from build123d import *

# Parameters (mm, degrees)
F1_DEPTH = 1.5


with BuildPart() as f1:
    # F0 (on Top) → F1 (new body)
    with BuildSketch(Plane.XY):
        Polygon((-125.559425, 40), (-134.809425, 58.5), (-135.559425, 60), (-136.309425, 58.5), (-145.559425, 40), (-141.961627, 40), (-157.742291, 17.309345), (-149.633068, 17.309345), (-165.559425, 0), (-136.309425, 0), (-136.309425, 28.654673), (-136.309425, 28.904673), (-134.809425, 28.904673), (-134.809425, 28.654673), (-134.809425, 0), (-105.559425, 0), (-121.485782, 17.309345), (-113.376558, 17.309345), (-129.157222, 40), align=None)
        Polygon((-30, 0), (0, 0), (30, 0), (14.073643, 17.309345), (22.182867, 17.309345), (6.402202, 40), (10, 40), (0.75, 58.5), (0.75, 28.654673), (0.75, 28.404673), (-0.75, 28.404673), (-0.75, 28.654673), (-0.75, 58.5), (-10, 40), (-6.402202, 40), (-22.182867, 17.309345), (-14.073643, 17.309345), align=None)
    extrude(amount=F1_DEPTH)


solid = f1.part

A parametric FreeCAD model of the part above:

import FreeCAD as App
import Part
import Sketcher

V = App.Vector
Q = App.Units.Quantity

doc = App.newDocument("Part")
body = doc.addObject("PartDesign::Body", "Body")
body.AllowCompound = True

# Sketch on XY plane
sketch1 = body.newObject("Sketcher::SketchObject", "Sketch")
sketch1.AttachmentSupport = (doc.getObject("XY_Plane"), [""])
sketch1.MapMode = "FlatFace"
sketch1.addGeometry([
    Part.LineSegment(V(-125.559425, 40, 0), V(-135.559425, 60, 0)),  # 0
    Part.LineSegment(V(-135.559425, 60, 0), V(-145.559425, 40, 0)),  # 1
    Part.LineSegment(V(-145.559425, 40, 0), V(-141.961627, 40, 0)),  # 2
    Part.LineSegment(V(-141.961627, 40, 0), V(-157.742291, 17.309345, 0)),  # 3
    Part.LineSegment(V(-157.742291, 17.309345, 0), V(-149.633068, 17.309345, 0)),  # 4
    Part.LineSegment(V(-149.633068, 17.309345, 0), V(-165.559425, 0, 0)),  # 5
    Part.LineSegment(V(-165.559425, 0, 0), V(-136.309425, 0, 0)),  # 6
    Part.LineSegment(V(-136.309425, 0, 0), V(-136.309425, 28.904673, 0)),  # 7
    Part.LineSegment(V(-136.309425, 28.904673, 0), V(-134.809425, 28.904673, 0)),  # 8
    Part.LineSegment(V(-134.809425, 28.904673, 0), V(-134.809425, 0, 0)),  # 9
    Part.LineSegment(V(-134.809425, 0, 0), V(-105.559425, 0, 0)),  # 10
    Part.LineSegment(V(-105.559425, 0, 0), V(-121.485782, 17.309345, 0)),  # 11
    Part.LineSegment(V(-121.485782, 17.309345, 0), V(-113.376558, 17.309345, 0)),  # 12
    Part.LineSegment(V(-113.376558, 17.309345, 0), V(-129.157222, 40, 0)),  # 13
    Part.LineSegment(V(-129.157222, 40, 0), V(-125.559425, 40, 0)),  # 14
    Part.LineSegment(V(-30, 0, 0), V(30, 0, 0)),  # 15
    Part.LineSegment(V(30, 0, 0), V(14.073643, 17.309345, 0)),  # 16
    Part.LineSegment(V(14.073643, 17.309345, 0), V(22.182867, 17.309345, 0)),  # 17
    Part.LineSegment(V(22.182867, 17.309345, 0), V(6.402202, 40, 0)),  # 18
    Part.LineSegment(V(6.402202, 40, 0), V(10, 40, 0)),  # 19
    Part.LineSegment(V(10, 40, 0), V(0.75, 58.5, 0)),  # 20
    Part.LineSegment(V(0.75, 58.5, 0), V(0.75, 28.404673, 0)),  # 21
    Part.LineSegment(V(0.75, 28.404673, 0), V(-0.75, 28.404673, 0)),  # 22
    Part.LineSegment(V(-0.75, 28.404673, 0), V(-0.75, 58.5, 0)),  # 23
    Part.LineSegment(V(-0.75, 58.5, 0), V(-10, 40, 0)),  # 24
    Part.LineSegment(V(-10, 40, 0), V(-6.402202, 40, 0)),  # 25
    Part.LineSegment(V(-6.402202, 40, 0), V(-22.182867, 17.309345, 0)),  # 26
    Part.LineSegment(V(-22.182867, 17.309345, 0), V(-14.073643, 17.309345, 0)),  # 27
    Part.LineSegment(V(-14.073643, 17.309345, 0), V(-30, 0, 0)),  # 28
], False)
sketch1.addConstraint([
    Sketcher.Constraint("Coincident", 0, 2, 1, 1),
    Sketcher.Constraint("Coincident", 1, 2, 2, 1),
    Sketcher.Constraint("Coincident", 2, 2, 3, 1),
    Sketcher.Constraint("Coincident", 3, 2, 4, 1),
    Sketcher.Constraint("Coincident", 4, 2, 5, 1),
    Sketcher.Constraint("Coincident", 5, 2, 6, 1),
    Sketcher.Constraint("Coincident", 6, 2, 7, 1),
    Sketcher.Constraint("Coincident", 7, 2, 8, 1),
    Sketcher.Constraint("Coincident", 8, 2, 9, 1),
    Sketcher.Constraint("Coincident", 9, 2, 10, 1),
    Sketcher.Constraint("Coincident", 10, 2, 11, 1),
    Sketcher.Constraint("Coincident", 11, 2, 12, 1),
    Sketcher.Constraint("Coincident", 12, 2, 13, 1),
    Sketcher.Constraint("Coincident", 13, 2, 14, 1),
    Sketcher.Constraint("Coincident", 14, 2, 0, 1),
    Sketcher.Constraint("Coincident", 15, 2, 16, 1),
    Sketcher.Constraint("Coincident", 16, 2, 17, 1),
    Sketcher.Constraint("Coincident", 17, 2, 18, 1),
    Sketcher.Constraint("Coincident", 18, 2, 19, 1),
    Sketcher.Constraint("Coincident", 19, 2, 20, 1),
    Sketcher.Constraint("Coincident", 20, 2, 21, 1),
    Sketcher.Constraint("Coincident", 21, 2, 22, 1),
    Sketcher.Constraint("Coincident", 22, 2, 23, 1),
    Sketcher.Constraint("Coincident", 23, 2, 24, 1),
    Sketcher.Constraint("Coincident", 24, 2, 25, 1),
    Sketcher.Constraint("Coincident", 25, 2, 26, 1),
    Sketcher.Constraint("Coincident", 26, 2, 27, 1),
    Sketcher.Constraint("Coincident", 27, 2, 28, 1),
    Sketcher.Constraint("Coincident", 28, 2, 15, 1),
    Sketcher.Constraint("Horizontal", 2),
    Sketcher.Constraint("Horizontal", 4),
    Sketcher.Constraint("Horizontal", 6),
    Sketcher.Constraint("Vertical", 7),
    Sketcher.Constraint("Horizontal", 8),
    Sketcher.Constraint("Vertical", 9),
    Sketcher.Constraint("Horizontal", 10),
    Sketcher.Constraint("Horizontal", 12),
    Sketcher.Constraint("Horizontal", 14),
    Sketcher.Constraint("Horizontal", 15),
    Sketcher.Constraint("Horizontal", 17),
    Sketcher.Constraint("Horizontal", 19),
    Sketcher.Constraint("Vertical", 21),
    Sketcher.Constraint("Horizontal", 22),
    Sketcher.Constraint("Vertical", 23),
    Sketcher.Constraint("Horizontal", 25),
    Sketcher.Constraint("Horizontal", 27),
    Sketcher.Constraint("Symmetric", 15, 2, 28, 2, -1, 1),
    Sketcher.Constraint("Symmetric", 20, 2, 23, 2, -2),
    Sketcher.Constraint("Symmetric", 19, 2, 24, 2, -2),
    Sketcher.Constraint("Symmetric", 17, 2, 26, 2, -2),
    Sketcher.Constraint("PointOnObject", 5, 2, -1),
    Sketcher.Constraint("PointOnObject", 9, 2, -1),
    Sketcher.Constraint("Parallel", 11, 16),
    Sketcher.Constraint("Parallel", 13, 18),
    Sketcher.Constraint("Parallel", 0, 20),
    Sketcher.Constraint("Parallel", 1, 24),
    Sketcher.Constraint("Parallel", 3, 26),
    Sketcher.Constraint("Parallel", 5, 28),
    Sketcher.Constraint("Horizontal", 4, 2, 11, 2),
    Sketcher.Constraint("Horizontal", 2, 2, 13, 2),
    Sketcher.Constraint("Horizontal", 12, 2, 16, 2),
    Sketcher.Constraint("Horizontal", 14, 2, 18, 2),
    Sketcher.Constraint("Equal", 6, 10),
    Sketcher.Constraint("Equal", 4, 12),
    Sketcher.Constraint("Equal", 2, 14),
    Sketcher.Constraint("Equal", 12, 17),
    Sketcher.Constraint("Equal", 14, 19),
    Sketcher.Constraint("Equal", 8, 22),
    Sketcher.Constraint("Equal", 19, 25),
    Sketcher.Constraint("Equal", 17, 27),
    Sketcher.Constraint("DistanceX", 15, 1, 15, 2, Q("60 mm")),
    Sketcher.Constraint("DistanceX", 8, 1, 8, 2, Q("1.5 mm")),
    Sketcher.Constraint("DistanceY", -1, 1, 0, 2, Q("60 mm")),
    Sketcher.Constraint("DistanceY", -1, 1, 1, 2, Q("40 mm")),
    Sketcher.Constraint("DistanceX", -1, 1, 19, 2, Q("10 mm")),
    Sketcher.Constraint("DistanceX", 1, 2, 0, 2, Q("10 mm")),
    Sketcher.Constraint("DistanceX", 2, 1, 2, 2, Q("3.597798 mm")),
    Sketcher.Constraint("DistanceX", 12, 2, 16, 2, Q("127.450201 mm")),
    Sketcher.Constraint("DistanceX", 4, 1, 4, 2, Q("8.109223 mm")),
    Sketcher.Constraint("DistanceY", 7, 1, 7, 2, Q("28.904673 mm")),
    Sketcher.Constraint("DistanceY", 21, 2, 21, 1, Q("30.095327 mm")),
    Sketcher.Constraint("DistanceX", 3, 2, -1, 1, Q("157.742291 mm")),
    Sketcher.Constraint("Distance", 3, Q("27.638654 mm")),
])
pad1 = body.newObject("PartDesign::Pad", "Pad")
pad1.Profile = sketch1
pad1.Length = 1.5

doc.recompute()
